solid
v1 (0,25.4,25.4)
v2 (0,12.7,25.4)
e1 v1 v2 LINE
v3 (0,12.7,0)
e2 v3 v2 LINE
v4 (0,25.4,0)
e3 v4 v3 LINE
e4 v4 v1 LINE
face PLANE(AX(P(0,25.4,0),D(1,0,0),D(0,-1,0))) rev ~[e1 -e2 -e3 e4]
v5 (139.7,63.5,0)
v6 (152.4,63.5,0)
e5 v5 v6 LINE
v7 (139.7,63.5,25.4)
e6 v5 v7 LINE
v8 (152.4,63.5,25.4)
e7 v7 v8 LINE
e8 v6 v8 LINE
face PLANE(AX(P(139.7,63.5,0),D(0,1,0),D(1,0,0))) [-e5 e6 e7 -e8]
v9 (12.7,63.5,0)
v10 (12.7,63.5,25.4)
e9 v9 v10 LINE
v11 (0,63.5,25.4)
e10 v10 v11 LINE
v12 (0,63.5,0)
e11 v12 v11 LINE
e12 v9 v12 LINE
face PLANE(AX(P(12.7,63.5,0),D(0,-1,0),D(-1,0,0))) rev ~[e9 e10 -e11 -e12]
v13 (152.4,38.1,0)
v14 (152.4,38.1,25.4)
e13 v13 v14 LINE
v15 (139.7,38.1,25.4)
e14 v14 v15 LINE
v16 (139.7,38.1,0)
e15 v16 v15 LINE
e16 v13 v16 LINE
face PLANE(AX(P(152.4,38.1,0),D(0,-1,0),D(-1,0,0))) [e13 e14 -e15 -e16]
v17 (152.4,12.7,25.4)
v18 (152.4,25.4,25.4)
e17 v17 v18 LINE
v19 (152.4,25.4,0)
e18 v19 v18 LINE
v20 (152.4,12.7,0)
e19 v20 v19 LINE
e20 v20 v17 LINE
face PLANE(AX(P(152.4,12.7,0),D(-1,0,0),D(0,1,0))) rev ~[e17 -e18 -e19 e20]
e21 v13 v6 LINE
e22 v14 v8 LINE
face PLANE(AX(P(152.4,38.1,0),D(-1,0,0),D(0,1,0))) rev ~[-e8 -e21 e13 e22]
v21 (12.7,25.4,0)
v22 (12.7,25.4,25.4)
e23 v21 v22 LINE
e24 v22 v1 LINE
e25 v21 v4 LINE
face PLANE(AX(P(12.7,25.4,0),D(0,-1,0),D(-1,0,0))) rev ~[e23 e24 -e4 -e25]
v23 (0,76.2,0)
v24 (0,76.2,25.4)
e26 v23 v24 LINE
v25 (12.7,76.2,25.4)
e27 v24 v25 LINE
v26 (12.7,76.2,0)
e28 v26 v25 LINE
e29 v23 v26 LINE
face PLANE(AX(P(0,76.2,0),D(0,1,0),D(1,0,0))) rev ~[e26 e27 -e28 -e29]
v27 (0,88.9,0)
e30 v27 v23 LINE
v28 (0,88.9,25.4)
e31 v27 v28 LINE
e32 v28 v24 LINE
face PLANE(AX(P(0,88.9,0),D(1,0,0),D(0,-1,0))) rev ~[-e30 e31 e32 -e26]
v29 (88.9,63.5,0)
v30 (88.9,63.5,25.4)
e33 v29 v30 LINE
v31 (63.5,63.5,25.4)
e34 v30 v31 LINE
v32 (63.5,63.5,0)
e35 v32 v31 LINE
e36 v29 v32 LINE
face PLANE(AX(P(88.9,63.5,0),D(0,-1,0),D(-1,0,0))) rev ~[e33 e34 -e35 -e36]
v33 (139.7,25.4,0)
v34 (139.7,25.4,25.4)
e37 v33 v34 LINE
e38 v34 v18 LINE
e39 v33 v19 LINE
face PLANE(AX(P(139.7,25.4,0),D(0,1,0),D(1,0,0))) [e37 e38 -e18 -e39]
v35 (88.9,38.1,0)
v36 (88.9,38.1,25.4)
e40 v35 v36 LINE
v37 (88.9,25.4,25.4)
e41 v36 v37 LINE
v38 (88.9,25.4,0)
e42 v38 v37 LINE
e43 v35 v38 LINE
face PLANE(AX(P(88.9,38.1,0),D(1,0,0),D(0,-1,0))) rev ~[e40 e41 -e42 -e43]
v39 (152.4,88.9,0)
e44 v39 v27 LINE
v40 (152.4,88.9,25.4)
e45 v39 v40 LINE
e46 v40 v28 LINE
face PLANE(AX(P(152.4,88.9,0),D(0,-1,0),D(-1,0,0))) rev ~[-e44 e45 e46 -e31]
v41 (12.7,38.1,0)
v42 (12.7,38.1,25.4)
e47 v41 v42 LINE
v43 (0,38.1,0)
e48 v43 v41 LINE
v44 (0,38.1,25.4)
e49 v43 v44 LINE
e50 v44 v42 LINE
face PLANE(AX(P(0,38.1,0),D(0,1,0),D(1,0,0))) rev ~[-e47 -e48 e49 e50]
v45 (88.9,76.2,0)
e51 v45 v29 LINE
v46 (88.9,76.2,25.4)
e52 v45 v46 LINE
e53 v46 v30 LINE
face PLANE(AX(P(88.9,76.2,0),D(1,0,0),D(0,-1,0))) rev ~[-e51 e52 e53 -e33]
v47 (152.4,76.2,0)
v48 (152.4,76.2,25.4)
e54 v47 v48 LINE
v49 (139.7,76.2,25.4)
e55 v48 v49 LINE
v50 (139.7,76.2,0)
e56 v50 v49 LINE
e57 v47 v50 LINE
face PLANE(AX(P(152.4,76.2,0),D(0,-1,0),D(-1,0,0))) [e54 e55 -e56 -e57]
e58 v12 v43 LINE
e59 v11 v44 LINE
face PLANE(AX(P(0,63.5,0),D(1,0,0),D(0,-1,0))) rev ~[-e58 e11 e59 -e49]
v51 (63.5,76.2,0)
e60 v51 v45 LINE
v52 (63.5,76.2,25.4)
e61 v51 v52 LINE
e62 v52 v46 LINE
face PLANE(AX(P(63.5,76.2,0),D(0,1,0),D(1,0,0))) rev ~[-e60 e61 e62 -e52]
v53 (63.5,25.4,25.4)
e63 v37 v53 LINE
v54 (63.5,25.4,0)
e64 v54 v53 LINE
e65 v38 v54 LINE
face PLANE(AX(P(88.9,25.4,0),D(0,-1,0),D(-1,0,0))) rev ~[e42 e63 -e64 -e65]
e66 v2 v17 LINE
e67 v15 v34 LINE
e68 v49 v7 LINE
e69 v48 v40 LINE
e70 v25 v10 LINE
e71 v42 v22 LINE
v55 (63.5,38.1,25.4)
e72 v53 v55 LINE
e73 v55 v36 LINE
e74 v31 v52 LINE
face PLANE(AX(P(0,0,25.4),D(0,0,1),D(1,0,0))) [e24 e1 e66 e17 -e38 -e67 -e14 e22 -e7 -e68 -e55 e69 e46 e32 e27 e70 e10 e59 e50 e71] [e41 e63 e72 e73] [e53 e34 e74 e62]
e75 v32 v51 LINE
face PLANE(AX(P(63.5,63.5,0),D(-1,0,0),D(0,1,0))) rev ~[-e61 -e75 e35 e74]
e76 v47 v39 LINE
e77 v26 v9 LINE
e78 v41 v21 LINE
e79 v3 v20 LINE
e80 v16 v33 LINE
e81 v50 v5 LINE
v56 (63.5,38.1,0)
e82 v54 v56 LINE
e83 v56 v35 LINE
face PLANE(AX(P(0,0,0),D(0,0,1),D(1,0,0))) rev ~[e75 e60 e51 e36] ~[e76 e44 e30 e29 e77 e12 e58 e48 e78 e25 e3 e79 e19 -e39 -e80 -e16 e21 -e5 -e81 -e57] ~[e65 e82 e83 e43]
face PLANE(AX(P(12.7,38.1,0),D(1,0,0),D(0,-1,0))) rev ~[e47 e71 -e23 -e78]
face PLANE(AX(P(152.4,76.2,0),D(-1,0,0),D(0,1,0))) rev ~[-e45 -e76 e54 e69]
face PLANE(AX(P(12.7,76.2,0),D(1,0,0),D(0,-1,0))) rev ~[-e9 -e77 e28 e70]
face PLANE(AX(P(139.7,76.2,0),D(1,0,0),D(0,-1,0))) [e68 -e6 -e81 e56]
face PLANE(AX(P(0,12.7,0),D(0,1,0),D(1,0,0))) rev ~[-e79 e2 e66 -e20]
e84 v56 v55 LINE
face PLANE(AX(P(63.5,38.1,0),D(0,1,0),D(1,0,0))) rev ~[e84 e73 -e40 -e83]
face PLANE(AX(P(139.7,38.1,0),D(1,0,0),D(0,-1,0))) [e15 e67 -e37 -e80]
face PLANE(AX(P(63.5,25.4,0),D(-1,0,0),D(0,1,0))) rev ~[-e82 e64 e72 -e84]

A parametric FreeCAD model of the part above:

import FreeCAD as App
import Part
import Sketcher

V = App.Vector
Q = App.Units.Quantity

doc = App.newDocument("Part")
params = doc.addObject("Spreadsheet::Sheet", "Params")
for row, (alias, value) in enumerate([
    ("sketch1_width", "6 in"),
    ("sketch1_width2", "1 in"),
    ("sketch1_width3", "0.5 in"),
    ("pad1_length", "1 in"),
], start=1):
    params.set(f"A{row}", alias)
    params.set(f"B{row}", "=" + value)
    params.setAlias(f"B{row}", alias)

body = doc.addObject("PartDesign::Body", "Body")

# Sketch on XY plane
sketch1 = body.newObject("Sketcher::SketchObject", "Sketch")
sketch1.AttachmentSupport = (doc.getObject("XY_Plane"), [""])
sketch1.MapMode = "FlatFace"
sketch1.addGeometry(Part.LineSegment(V(0, 13, 0), V(152, 13, 0)), False)
sketch1.addGeometry(Part.LineSegment(V(152, 13, 0), V(152, 25, 0)), False)
sketch1.addGeometry(Part.LineSegment(V(152, 25, 0), V(140, 25, 0)), False)
sketch1.addGeometry(Part.LineSegment(V(140, 25, 0), V(140, 38, 0)), False)
sketch1.addGeometry(Part.LineSegment(V(140, 38, 0), V(152, 38, 0)), False)
sketch1.addGeometry(Part.LineSegment(V(152, 38, 0), V(152, 64, 0)), False)
sketch1.addGeometry(Part.LineSegment(V(152, 64, 0), V(140, 64, 0)), False)
sketch1.addGeometry(Part.LineSegment(V(140, 64, 0), V(140, 76, 0)), False)
sketch1.addGeometry(Part.LineSegment(V(140, 76, 0), V(152, 76, 0)), False)
sketch1.addGeometry(Part.LineSegment(V(152, 76, 0), V(152, 89, 0)), False)
sketch1.addGeometry(Part.LineSegment(V(152, 89, 0), V(0, 89, 0)), False)
sketch1.addGeometry(Part.LineSegment(V(0, 89, 0), V(0, 76, 0)), False)
sketch1.addGeometry(Part.LineSegment(V(0, 76, 0), V(13, 76, 0)), False)
sketch1.addGeometry(Part.LineSegment(V(13, 76, 0), V(13, 64, 0)), False)
sketch1.addGeometry(Part.LineSegment(V(13, 64, 0), V(0, 64, 0)), False)
sketch1.addGeometry(Part.LineSegment(V(0, 64, 0), V(0, 38, 0)), False)
sketch1.addGeometry(Part.LineSegment(V(0, 38, 0), V(13, 38, 0)), False)
sketch1.addGeometry(Part.LineSegment(V(13, 38, 0), V(13, 25, 0)), False)
sketch1.addGeometry(Part.LineSegment(V(13, 25, 0), V(0, 25, 0)), False)
sketch1.addGeometry(Part.LineSegment(V(0, 25, 0), V(0, 13, 0)), False)
sketch1.addGeometry(Part.LineSegment(V(89, 38, 0), V(89, 25, 0)), False)
sketch1.addGeometry(Part.LineSegment(V(89, 25, 0), V(64, 25, 0)), False)
sketch1.addGeometry(Part.LineSegment(V(64, 25, 0), V(64, 38, 0)), False)
sketch1.addGeometry(Part.LineSegment(V(64, 38, 0), V(89, 38, 0)), False)
sketch1.addGeometry(Part.LineSegment(V(64, 64, 0), V(64, 76, 0)), False)
sketch1.addGeometry(Part.LineSegment(V(64, 76, 0), V(89, 76, 0)), False)
sketch1.addGeometry(Part.LineSegment(V(89, 76, 0), V(89, 64, 0)), False)
sketch1.addGeometry(Part.LineSegment(V(89, 64, 0), V(64, 64, 0)), False)
sketch1.addConstraint(Sketcher.Constraint("Coincident", 0, 2, 1, 1))
sketch1.addConstraint(Sketcher.Constraint("Coincident", 1, 2, 2, 1))
sketch1.addConstraint(Sketcher.Constraint("Coincident", 2, 2, 3, 1))
sketch1.addConstraint(Sketcher.Constraint("Coincident", 3, 2, 4, 1))
sketch1.addConstraint(Sketcher.Constraint("Coincident", 4, 2, 5, 1))
sketch1.addConstraint(Sketcher.Constraint("Coincident", 5, 2, 6, 1))
sketch1.addConstraint(Sketcher.Constraint("Coincident", 6, 2, 7, 1))
sketch1.addConstraint(Sketcher.Constraint("Coincident", 7, 2, 8, 1))
sketch1.addConstraint(Sketcher.Constraint("Coincident", 8, 2, 9, 1))
sketch1.addConstraint(Sketcher.Constraint("Coincident", 9, 2, 10, 1))
sketch1.addConstraint(Sketcher.Constraint("Coincident", 10, 2, 11, 1))
sketch1.addConstraint(Sketcher.Constraint("Coincident", 11, 2, 12, 1))
sketch1.addConstraint(Sketcher.Constraint("Coincident", 12, 2, 13, 1))
sketch1.addConstraint(Sketcher.Constraint("Coincident", 13, 2, 14, 1))
sketch1.addConstraint(Sketcher.Constraint("Coincident", 14, 2, 15, 1))
sketch1.addConstraint(Sketcher.Constraint("Coincident", 15, 2, 16, 1))
sketch1.addConstraint(Sketcher.Constraint("Coincident", 16, 2, 17, 1))
sketch1.addConstraint(Sketcher.Constraint("Coincident", 17, 2, 18, 1))
sketch1.addConstraint(Sketcher.Constraint("Coincident", 18, 2, 19, 1))
sketch1.addConstraint(Sketcher.Constraint("Coincident", 19, 2, 0, 1))
sketch1.addConstraint(Sketcher.Constraint("Coincident", 20, 2, 21, 1))
sketch1.addConstraint(Sketcher.Constraint("Coincident", 21, 2, 22, 1))
sketch1.addConstraint(Sketcher.Constraint("Coincident", 22, 2, 23, 1))
sketch1.addConstraint(Sketcher.Constraint("Coincident", 23, 2, 20, 1))
sketch1.addConstraint(Sketcher.Constraint("Coincident", 24, 2, 25, 1))
sketch1.addConstraint(Sketcher.Constraint("Coincident", 25, 2, 26, 1))
sketch1.addConstraint(Sketcher.Constraint("Coincident", 26, 2, 27, 1))
sketch1.addConstraint(Sketcher.Constraint("Coincident", 27, 2, 24, 1))
sketch1.addConstraint(Sketcher.Constraint("Horizontal", 0))
sketch1.addConstraint(Sketcher.Constraint("Vertical", 1))
sketch1.addConstraint(Sketcher.Constraint("Horizontal", 2))
sketch1.addConstraint(Sketcher.Constraint("Vertical", 3))
sketch1.addConstraint(Sketcher.Constraint("Horizontal", 4))
sketch1.addConstraint(Sketcher.Constraint("Vertical", 5))
sketch1.addConstraint(Sketcher.Constraint("Horizontal", 6))
sketch1.addConstraint(Sketcher.Constraint("Vertical", 7))
sketch1.addConstraint(Sketcher.Constraint("Horizontal", 8))
sketch1.addConstraint(Sketcher.Constraint("Vertical", 9))
sketch1.addConstraint(Sketcher.Constraint("Horizontal", 10))
sketch1.addConstraint(Sketcher.Constraint("Vertical", 11))
sketch1.addConstraint(Sketcher.Constraint("Horizontal", 12))
sketch1.addConstraint(Sketcher.Constraint("Vertical", 13))
sketch1.addConstraint(Sketcher.Constraint("Horizontal", 14))
sketch1.addConstraint(Sketcher.Constraint("Vertical", 15))
sketch1.addConstraint(Sketcher.Constraint("Horizontal", 16))
sketch1.addConstraint(Sketcher.Constraint("Vertical", 17))
sketch1.addConstraint(Sketcher.Constraint("Horizontal", 18))
sketch1.addConstraint(Sketcher.Constraint("Vertical", 19))
sketch1.addConstraint(Sketcher.Constraint("Vertical", 20))
sketch1.addConstraint(Sketcher.Constraint("Horizontal", 21))
sketch1.addConstraint(Sketcher.Constraint("Vertical", 22))
sketch1.addConstraint(Sketcher.Constraint("Horizontal", 23))
sketch1.addConstraint(Sketcher.Constraint("Vertical", 24))
sketch1.addConstraint(Sketcher.Constraint("Horizontal", 25))
sketch1.addConstraint(Sketcher.Constraint("Vertical", 26))
sketch1.addConstraint(Sketcher.Constraint("Horizontal", 27))
sketch1.addConstraint(Sketcher.Constraint("PointOnObject", 10, 2, -2))
sketch1.addConstraint(Sketcher.Constraint("PointOnObject", 14, 2, -2))
sketch1.addConstraint(Sketcher.Constraint("PointOnObject", 18, 2, -2))
sketch1.addConstraint(Sketcher.Constraint("Horizontal", 8, 2, 11, 2))
sketch1.addConstraint(Sketcher.Constraint("Horizontal", 6, 2, 13, 2))
sketch1.addConstraint(Sketcher.Constraint("Horizontal", 4, 2, 15, 2))
sketch1.addConstraint(Sketcher.Constraint("Horizontal", 2, 2, 17, 2))
sketch1.addConstraint(Sketcher.Constraint("Horizontal", 18, 2, 20, 2))
sketch1.addConstraint(Sketcher.Constraint("Horizontal", 16, 2, 22, 2))
sketch1.addConstraint(Sketcher.Constraint("Horizontal", 12, 2, 24, 2))
sketch1.addConstraint(Sketcher.Constraint("Horizontal", 14, 2, 26, 2))
sketch1.addConstraint(Sketcher.Constraint("Vertical", 1, 2, 4, 2))
sketch1.addConstraint(Sketcher.Constraint("Vertical", 3, 2, 6, 2))
sketch1.addConstraint(Sketcher.Constraint("Vertical", 5, 2, 8, 2))
sketch1.addConstraint(Sketcher.Constraint("Vertical", 13, 2, 16, 2))
sketch1.addConstraint(Sketcher.Constraint("Vertical", 22, 2, 24, 2))
sketch1.addConstraint(Sketcher.Constraint("Vertical", 23, 2, 25, 2))
sketch1.addConstraint(Sketcher.Constraint("Equal", 8, 12))
sketch1.addConstraint(Sketcher.Constraint("Equal", 18, 1))
sketch1.addConstraint(Sketcher.Constraint("Equal", 1, 3))
sketch1.addConstraint(Sketcher.Constraint("Equal", 27, 5))
sketch1.addConstraint(Sketcher.Constraint("Equal", 3, 7))
sketch1.addConstraint(Sketcher.Constraint("Equal", 7, 9))
sketch1.addConstraint(Sketcher.Constraint("DistanceX", 0, 1, 0, 2, Q("6 in")))
sketch1.addConstraint(Sketcher.Constraint("DistanceX", 21, 2, 21, 1, Q("1 in")))
sketch1.addConstraint(Sketcher.Constraint("DistanceX", 2, 2, 2, 1, Q("0.5 in")))
sketch1.addConstraint(Sketcher.Constraint("DistanceY", -1, 1, 1, 2, Q("1 in")))
sketch1.addConstraint(Sketcher.Constraint("DistanceX", -1, 1, 21, 2, Q("2.5 in")))
sketch1.setExpression("Constraints[79]", "Params.sketch1_width")
sketch1.setExpression("Constraints[80]", "Params.sketch1_width2")
sketch1.setExpression("Constraints[81]", "Params.sketch1_width3")
pad1 = body.newObject("PartDesign::Pad", "Pad")
pad1.Profile = sketch1
pad1.setExpression("Length", "Params.pad1_length")

doc.recompute()
